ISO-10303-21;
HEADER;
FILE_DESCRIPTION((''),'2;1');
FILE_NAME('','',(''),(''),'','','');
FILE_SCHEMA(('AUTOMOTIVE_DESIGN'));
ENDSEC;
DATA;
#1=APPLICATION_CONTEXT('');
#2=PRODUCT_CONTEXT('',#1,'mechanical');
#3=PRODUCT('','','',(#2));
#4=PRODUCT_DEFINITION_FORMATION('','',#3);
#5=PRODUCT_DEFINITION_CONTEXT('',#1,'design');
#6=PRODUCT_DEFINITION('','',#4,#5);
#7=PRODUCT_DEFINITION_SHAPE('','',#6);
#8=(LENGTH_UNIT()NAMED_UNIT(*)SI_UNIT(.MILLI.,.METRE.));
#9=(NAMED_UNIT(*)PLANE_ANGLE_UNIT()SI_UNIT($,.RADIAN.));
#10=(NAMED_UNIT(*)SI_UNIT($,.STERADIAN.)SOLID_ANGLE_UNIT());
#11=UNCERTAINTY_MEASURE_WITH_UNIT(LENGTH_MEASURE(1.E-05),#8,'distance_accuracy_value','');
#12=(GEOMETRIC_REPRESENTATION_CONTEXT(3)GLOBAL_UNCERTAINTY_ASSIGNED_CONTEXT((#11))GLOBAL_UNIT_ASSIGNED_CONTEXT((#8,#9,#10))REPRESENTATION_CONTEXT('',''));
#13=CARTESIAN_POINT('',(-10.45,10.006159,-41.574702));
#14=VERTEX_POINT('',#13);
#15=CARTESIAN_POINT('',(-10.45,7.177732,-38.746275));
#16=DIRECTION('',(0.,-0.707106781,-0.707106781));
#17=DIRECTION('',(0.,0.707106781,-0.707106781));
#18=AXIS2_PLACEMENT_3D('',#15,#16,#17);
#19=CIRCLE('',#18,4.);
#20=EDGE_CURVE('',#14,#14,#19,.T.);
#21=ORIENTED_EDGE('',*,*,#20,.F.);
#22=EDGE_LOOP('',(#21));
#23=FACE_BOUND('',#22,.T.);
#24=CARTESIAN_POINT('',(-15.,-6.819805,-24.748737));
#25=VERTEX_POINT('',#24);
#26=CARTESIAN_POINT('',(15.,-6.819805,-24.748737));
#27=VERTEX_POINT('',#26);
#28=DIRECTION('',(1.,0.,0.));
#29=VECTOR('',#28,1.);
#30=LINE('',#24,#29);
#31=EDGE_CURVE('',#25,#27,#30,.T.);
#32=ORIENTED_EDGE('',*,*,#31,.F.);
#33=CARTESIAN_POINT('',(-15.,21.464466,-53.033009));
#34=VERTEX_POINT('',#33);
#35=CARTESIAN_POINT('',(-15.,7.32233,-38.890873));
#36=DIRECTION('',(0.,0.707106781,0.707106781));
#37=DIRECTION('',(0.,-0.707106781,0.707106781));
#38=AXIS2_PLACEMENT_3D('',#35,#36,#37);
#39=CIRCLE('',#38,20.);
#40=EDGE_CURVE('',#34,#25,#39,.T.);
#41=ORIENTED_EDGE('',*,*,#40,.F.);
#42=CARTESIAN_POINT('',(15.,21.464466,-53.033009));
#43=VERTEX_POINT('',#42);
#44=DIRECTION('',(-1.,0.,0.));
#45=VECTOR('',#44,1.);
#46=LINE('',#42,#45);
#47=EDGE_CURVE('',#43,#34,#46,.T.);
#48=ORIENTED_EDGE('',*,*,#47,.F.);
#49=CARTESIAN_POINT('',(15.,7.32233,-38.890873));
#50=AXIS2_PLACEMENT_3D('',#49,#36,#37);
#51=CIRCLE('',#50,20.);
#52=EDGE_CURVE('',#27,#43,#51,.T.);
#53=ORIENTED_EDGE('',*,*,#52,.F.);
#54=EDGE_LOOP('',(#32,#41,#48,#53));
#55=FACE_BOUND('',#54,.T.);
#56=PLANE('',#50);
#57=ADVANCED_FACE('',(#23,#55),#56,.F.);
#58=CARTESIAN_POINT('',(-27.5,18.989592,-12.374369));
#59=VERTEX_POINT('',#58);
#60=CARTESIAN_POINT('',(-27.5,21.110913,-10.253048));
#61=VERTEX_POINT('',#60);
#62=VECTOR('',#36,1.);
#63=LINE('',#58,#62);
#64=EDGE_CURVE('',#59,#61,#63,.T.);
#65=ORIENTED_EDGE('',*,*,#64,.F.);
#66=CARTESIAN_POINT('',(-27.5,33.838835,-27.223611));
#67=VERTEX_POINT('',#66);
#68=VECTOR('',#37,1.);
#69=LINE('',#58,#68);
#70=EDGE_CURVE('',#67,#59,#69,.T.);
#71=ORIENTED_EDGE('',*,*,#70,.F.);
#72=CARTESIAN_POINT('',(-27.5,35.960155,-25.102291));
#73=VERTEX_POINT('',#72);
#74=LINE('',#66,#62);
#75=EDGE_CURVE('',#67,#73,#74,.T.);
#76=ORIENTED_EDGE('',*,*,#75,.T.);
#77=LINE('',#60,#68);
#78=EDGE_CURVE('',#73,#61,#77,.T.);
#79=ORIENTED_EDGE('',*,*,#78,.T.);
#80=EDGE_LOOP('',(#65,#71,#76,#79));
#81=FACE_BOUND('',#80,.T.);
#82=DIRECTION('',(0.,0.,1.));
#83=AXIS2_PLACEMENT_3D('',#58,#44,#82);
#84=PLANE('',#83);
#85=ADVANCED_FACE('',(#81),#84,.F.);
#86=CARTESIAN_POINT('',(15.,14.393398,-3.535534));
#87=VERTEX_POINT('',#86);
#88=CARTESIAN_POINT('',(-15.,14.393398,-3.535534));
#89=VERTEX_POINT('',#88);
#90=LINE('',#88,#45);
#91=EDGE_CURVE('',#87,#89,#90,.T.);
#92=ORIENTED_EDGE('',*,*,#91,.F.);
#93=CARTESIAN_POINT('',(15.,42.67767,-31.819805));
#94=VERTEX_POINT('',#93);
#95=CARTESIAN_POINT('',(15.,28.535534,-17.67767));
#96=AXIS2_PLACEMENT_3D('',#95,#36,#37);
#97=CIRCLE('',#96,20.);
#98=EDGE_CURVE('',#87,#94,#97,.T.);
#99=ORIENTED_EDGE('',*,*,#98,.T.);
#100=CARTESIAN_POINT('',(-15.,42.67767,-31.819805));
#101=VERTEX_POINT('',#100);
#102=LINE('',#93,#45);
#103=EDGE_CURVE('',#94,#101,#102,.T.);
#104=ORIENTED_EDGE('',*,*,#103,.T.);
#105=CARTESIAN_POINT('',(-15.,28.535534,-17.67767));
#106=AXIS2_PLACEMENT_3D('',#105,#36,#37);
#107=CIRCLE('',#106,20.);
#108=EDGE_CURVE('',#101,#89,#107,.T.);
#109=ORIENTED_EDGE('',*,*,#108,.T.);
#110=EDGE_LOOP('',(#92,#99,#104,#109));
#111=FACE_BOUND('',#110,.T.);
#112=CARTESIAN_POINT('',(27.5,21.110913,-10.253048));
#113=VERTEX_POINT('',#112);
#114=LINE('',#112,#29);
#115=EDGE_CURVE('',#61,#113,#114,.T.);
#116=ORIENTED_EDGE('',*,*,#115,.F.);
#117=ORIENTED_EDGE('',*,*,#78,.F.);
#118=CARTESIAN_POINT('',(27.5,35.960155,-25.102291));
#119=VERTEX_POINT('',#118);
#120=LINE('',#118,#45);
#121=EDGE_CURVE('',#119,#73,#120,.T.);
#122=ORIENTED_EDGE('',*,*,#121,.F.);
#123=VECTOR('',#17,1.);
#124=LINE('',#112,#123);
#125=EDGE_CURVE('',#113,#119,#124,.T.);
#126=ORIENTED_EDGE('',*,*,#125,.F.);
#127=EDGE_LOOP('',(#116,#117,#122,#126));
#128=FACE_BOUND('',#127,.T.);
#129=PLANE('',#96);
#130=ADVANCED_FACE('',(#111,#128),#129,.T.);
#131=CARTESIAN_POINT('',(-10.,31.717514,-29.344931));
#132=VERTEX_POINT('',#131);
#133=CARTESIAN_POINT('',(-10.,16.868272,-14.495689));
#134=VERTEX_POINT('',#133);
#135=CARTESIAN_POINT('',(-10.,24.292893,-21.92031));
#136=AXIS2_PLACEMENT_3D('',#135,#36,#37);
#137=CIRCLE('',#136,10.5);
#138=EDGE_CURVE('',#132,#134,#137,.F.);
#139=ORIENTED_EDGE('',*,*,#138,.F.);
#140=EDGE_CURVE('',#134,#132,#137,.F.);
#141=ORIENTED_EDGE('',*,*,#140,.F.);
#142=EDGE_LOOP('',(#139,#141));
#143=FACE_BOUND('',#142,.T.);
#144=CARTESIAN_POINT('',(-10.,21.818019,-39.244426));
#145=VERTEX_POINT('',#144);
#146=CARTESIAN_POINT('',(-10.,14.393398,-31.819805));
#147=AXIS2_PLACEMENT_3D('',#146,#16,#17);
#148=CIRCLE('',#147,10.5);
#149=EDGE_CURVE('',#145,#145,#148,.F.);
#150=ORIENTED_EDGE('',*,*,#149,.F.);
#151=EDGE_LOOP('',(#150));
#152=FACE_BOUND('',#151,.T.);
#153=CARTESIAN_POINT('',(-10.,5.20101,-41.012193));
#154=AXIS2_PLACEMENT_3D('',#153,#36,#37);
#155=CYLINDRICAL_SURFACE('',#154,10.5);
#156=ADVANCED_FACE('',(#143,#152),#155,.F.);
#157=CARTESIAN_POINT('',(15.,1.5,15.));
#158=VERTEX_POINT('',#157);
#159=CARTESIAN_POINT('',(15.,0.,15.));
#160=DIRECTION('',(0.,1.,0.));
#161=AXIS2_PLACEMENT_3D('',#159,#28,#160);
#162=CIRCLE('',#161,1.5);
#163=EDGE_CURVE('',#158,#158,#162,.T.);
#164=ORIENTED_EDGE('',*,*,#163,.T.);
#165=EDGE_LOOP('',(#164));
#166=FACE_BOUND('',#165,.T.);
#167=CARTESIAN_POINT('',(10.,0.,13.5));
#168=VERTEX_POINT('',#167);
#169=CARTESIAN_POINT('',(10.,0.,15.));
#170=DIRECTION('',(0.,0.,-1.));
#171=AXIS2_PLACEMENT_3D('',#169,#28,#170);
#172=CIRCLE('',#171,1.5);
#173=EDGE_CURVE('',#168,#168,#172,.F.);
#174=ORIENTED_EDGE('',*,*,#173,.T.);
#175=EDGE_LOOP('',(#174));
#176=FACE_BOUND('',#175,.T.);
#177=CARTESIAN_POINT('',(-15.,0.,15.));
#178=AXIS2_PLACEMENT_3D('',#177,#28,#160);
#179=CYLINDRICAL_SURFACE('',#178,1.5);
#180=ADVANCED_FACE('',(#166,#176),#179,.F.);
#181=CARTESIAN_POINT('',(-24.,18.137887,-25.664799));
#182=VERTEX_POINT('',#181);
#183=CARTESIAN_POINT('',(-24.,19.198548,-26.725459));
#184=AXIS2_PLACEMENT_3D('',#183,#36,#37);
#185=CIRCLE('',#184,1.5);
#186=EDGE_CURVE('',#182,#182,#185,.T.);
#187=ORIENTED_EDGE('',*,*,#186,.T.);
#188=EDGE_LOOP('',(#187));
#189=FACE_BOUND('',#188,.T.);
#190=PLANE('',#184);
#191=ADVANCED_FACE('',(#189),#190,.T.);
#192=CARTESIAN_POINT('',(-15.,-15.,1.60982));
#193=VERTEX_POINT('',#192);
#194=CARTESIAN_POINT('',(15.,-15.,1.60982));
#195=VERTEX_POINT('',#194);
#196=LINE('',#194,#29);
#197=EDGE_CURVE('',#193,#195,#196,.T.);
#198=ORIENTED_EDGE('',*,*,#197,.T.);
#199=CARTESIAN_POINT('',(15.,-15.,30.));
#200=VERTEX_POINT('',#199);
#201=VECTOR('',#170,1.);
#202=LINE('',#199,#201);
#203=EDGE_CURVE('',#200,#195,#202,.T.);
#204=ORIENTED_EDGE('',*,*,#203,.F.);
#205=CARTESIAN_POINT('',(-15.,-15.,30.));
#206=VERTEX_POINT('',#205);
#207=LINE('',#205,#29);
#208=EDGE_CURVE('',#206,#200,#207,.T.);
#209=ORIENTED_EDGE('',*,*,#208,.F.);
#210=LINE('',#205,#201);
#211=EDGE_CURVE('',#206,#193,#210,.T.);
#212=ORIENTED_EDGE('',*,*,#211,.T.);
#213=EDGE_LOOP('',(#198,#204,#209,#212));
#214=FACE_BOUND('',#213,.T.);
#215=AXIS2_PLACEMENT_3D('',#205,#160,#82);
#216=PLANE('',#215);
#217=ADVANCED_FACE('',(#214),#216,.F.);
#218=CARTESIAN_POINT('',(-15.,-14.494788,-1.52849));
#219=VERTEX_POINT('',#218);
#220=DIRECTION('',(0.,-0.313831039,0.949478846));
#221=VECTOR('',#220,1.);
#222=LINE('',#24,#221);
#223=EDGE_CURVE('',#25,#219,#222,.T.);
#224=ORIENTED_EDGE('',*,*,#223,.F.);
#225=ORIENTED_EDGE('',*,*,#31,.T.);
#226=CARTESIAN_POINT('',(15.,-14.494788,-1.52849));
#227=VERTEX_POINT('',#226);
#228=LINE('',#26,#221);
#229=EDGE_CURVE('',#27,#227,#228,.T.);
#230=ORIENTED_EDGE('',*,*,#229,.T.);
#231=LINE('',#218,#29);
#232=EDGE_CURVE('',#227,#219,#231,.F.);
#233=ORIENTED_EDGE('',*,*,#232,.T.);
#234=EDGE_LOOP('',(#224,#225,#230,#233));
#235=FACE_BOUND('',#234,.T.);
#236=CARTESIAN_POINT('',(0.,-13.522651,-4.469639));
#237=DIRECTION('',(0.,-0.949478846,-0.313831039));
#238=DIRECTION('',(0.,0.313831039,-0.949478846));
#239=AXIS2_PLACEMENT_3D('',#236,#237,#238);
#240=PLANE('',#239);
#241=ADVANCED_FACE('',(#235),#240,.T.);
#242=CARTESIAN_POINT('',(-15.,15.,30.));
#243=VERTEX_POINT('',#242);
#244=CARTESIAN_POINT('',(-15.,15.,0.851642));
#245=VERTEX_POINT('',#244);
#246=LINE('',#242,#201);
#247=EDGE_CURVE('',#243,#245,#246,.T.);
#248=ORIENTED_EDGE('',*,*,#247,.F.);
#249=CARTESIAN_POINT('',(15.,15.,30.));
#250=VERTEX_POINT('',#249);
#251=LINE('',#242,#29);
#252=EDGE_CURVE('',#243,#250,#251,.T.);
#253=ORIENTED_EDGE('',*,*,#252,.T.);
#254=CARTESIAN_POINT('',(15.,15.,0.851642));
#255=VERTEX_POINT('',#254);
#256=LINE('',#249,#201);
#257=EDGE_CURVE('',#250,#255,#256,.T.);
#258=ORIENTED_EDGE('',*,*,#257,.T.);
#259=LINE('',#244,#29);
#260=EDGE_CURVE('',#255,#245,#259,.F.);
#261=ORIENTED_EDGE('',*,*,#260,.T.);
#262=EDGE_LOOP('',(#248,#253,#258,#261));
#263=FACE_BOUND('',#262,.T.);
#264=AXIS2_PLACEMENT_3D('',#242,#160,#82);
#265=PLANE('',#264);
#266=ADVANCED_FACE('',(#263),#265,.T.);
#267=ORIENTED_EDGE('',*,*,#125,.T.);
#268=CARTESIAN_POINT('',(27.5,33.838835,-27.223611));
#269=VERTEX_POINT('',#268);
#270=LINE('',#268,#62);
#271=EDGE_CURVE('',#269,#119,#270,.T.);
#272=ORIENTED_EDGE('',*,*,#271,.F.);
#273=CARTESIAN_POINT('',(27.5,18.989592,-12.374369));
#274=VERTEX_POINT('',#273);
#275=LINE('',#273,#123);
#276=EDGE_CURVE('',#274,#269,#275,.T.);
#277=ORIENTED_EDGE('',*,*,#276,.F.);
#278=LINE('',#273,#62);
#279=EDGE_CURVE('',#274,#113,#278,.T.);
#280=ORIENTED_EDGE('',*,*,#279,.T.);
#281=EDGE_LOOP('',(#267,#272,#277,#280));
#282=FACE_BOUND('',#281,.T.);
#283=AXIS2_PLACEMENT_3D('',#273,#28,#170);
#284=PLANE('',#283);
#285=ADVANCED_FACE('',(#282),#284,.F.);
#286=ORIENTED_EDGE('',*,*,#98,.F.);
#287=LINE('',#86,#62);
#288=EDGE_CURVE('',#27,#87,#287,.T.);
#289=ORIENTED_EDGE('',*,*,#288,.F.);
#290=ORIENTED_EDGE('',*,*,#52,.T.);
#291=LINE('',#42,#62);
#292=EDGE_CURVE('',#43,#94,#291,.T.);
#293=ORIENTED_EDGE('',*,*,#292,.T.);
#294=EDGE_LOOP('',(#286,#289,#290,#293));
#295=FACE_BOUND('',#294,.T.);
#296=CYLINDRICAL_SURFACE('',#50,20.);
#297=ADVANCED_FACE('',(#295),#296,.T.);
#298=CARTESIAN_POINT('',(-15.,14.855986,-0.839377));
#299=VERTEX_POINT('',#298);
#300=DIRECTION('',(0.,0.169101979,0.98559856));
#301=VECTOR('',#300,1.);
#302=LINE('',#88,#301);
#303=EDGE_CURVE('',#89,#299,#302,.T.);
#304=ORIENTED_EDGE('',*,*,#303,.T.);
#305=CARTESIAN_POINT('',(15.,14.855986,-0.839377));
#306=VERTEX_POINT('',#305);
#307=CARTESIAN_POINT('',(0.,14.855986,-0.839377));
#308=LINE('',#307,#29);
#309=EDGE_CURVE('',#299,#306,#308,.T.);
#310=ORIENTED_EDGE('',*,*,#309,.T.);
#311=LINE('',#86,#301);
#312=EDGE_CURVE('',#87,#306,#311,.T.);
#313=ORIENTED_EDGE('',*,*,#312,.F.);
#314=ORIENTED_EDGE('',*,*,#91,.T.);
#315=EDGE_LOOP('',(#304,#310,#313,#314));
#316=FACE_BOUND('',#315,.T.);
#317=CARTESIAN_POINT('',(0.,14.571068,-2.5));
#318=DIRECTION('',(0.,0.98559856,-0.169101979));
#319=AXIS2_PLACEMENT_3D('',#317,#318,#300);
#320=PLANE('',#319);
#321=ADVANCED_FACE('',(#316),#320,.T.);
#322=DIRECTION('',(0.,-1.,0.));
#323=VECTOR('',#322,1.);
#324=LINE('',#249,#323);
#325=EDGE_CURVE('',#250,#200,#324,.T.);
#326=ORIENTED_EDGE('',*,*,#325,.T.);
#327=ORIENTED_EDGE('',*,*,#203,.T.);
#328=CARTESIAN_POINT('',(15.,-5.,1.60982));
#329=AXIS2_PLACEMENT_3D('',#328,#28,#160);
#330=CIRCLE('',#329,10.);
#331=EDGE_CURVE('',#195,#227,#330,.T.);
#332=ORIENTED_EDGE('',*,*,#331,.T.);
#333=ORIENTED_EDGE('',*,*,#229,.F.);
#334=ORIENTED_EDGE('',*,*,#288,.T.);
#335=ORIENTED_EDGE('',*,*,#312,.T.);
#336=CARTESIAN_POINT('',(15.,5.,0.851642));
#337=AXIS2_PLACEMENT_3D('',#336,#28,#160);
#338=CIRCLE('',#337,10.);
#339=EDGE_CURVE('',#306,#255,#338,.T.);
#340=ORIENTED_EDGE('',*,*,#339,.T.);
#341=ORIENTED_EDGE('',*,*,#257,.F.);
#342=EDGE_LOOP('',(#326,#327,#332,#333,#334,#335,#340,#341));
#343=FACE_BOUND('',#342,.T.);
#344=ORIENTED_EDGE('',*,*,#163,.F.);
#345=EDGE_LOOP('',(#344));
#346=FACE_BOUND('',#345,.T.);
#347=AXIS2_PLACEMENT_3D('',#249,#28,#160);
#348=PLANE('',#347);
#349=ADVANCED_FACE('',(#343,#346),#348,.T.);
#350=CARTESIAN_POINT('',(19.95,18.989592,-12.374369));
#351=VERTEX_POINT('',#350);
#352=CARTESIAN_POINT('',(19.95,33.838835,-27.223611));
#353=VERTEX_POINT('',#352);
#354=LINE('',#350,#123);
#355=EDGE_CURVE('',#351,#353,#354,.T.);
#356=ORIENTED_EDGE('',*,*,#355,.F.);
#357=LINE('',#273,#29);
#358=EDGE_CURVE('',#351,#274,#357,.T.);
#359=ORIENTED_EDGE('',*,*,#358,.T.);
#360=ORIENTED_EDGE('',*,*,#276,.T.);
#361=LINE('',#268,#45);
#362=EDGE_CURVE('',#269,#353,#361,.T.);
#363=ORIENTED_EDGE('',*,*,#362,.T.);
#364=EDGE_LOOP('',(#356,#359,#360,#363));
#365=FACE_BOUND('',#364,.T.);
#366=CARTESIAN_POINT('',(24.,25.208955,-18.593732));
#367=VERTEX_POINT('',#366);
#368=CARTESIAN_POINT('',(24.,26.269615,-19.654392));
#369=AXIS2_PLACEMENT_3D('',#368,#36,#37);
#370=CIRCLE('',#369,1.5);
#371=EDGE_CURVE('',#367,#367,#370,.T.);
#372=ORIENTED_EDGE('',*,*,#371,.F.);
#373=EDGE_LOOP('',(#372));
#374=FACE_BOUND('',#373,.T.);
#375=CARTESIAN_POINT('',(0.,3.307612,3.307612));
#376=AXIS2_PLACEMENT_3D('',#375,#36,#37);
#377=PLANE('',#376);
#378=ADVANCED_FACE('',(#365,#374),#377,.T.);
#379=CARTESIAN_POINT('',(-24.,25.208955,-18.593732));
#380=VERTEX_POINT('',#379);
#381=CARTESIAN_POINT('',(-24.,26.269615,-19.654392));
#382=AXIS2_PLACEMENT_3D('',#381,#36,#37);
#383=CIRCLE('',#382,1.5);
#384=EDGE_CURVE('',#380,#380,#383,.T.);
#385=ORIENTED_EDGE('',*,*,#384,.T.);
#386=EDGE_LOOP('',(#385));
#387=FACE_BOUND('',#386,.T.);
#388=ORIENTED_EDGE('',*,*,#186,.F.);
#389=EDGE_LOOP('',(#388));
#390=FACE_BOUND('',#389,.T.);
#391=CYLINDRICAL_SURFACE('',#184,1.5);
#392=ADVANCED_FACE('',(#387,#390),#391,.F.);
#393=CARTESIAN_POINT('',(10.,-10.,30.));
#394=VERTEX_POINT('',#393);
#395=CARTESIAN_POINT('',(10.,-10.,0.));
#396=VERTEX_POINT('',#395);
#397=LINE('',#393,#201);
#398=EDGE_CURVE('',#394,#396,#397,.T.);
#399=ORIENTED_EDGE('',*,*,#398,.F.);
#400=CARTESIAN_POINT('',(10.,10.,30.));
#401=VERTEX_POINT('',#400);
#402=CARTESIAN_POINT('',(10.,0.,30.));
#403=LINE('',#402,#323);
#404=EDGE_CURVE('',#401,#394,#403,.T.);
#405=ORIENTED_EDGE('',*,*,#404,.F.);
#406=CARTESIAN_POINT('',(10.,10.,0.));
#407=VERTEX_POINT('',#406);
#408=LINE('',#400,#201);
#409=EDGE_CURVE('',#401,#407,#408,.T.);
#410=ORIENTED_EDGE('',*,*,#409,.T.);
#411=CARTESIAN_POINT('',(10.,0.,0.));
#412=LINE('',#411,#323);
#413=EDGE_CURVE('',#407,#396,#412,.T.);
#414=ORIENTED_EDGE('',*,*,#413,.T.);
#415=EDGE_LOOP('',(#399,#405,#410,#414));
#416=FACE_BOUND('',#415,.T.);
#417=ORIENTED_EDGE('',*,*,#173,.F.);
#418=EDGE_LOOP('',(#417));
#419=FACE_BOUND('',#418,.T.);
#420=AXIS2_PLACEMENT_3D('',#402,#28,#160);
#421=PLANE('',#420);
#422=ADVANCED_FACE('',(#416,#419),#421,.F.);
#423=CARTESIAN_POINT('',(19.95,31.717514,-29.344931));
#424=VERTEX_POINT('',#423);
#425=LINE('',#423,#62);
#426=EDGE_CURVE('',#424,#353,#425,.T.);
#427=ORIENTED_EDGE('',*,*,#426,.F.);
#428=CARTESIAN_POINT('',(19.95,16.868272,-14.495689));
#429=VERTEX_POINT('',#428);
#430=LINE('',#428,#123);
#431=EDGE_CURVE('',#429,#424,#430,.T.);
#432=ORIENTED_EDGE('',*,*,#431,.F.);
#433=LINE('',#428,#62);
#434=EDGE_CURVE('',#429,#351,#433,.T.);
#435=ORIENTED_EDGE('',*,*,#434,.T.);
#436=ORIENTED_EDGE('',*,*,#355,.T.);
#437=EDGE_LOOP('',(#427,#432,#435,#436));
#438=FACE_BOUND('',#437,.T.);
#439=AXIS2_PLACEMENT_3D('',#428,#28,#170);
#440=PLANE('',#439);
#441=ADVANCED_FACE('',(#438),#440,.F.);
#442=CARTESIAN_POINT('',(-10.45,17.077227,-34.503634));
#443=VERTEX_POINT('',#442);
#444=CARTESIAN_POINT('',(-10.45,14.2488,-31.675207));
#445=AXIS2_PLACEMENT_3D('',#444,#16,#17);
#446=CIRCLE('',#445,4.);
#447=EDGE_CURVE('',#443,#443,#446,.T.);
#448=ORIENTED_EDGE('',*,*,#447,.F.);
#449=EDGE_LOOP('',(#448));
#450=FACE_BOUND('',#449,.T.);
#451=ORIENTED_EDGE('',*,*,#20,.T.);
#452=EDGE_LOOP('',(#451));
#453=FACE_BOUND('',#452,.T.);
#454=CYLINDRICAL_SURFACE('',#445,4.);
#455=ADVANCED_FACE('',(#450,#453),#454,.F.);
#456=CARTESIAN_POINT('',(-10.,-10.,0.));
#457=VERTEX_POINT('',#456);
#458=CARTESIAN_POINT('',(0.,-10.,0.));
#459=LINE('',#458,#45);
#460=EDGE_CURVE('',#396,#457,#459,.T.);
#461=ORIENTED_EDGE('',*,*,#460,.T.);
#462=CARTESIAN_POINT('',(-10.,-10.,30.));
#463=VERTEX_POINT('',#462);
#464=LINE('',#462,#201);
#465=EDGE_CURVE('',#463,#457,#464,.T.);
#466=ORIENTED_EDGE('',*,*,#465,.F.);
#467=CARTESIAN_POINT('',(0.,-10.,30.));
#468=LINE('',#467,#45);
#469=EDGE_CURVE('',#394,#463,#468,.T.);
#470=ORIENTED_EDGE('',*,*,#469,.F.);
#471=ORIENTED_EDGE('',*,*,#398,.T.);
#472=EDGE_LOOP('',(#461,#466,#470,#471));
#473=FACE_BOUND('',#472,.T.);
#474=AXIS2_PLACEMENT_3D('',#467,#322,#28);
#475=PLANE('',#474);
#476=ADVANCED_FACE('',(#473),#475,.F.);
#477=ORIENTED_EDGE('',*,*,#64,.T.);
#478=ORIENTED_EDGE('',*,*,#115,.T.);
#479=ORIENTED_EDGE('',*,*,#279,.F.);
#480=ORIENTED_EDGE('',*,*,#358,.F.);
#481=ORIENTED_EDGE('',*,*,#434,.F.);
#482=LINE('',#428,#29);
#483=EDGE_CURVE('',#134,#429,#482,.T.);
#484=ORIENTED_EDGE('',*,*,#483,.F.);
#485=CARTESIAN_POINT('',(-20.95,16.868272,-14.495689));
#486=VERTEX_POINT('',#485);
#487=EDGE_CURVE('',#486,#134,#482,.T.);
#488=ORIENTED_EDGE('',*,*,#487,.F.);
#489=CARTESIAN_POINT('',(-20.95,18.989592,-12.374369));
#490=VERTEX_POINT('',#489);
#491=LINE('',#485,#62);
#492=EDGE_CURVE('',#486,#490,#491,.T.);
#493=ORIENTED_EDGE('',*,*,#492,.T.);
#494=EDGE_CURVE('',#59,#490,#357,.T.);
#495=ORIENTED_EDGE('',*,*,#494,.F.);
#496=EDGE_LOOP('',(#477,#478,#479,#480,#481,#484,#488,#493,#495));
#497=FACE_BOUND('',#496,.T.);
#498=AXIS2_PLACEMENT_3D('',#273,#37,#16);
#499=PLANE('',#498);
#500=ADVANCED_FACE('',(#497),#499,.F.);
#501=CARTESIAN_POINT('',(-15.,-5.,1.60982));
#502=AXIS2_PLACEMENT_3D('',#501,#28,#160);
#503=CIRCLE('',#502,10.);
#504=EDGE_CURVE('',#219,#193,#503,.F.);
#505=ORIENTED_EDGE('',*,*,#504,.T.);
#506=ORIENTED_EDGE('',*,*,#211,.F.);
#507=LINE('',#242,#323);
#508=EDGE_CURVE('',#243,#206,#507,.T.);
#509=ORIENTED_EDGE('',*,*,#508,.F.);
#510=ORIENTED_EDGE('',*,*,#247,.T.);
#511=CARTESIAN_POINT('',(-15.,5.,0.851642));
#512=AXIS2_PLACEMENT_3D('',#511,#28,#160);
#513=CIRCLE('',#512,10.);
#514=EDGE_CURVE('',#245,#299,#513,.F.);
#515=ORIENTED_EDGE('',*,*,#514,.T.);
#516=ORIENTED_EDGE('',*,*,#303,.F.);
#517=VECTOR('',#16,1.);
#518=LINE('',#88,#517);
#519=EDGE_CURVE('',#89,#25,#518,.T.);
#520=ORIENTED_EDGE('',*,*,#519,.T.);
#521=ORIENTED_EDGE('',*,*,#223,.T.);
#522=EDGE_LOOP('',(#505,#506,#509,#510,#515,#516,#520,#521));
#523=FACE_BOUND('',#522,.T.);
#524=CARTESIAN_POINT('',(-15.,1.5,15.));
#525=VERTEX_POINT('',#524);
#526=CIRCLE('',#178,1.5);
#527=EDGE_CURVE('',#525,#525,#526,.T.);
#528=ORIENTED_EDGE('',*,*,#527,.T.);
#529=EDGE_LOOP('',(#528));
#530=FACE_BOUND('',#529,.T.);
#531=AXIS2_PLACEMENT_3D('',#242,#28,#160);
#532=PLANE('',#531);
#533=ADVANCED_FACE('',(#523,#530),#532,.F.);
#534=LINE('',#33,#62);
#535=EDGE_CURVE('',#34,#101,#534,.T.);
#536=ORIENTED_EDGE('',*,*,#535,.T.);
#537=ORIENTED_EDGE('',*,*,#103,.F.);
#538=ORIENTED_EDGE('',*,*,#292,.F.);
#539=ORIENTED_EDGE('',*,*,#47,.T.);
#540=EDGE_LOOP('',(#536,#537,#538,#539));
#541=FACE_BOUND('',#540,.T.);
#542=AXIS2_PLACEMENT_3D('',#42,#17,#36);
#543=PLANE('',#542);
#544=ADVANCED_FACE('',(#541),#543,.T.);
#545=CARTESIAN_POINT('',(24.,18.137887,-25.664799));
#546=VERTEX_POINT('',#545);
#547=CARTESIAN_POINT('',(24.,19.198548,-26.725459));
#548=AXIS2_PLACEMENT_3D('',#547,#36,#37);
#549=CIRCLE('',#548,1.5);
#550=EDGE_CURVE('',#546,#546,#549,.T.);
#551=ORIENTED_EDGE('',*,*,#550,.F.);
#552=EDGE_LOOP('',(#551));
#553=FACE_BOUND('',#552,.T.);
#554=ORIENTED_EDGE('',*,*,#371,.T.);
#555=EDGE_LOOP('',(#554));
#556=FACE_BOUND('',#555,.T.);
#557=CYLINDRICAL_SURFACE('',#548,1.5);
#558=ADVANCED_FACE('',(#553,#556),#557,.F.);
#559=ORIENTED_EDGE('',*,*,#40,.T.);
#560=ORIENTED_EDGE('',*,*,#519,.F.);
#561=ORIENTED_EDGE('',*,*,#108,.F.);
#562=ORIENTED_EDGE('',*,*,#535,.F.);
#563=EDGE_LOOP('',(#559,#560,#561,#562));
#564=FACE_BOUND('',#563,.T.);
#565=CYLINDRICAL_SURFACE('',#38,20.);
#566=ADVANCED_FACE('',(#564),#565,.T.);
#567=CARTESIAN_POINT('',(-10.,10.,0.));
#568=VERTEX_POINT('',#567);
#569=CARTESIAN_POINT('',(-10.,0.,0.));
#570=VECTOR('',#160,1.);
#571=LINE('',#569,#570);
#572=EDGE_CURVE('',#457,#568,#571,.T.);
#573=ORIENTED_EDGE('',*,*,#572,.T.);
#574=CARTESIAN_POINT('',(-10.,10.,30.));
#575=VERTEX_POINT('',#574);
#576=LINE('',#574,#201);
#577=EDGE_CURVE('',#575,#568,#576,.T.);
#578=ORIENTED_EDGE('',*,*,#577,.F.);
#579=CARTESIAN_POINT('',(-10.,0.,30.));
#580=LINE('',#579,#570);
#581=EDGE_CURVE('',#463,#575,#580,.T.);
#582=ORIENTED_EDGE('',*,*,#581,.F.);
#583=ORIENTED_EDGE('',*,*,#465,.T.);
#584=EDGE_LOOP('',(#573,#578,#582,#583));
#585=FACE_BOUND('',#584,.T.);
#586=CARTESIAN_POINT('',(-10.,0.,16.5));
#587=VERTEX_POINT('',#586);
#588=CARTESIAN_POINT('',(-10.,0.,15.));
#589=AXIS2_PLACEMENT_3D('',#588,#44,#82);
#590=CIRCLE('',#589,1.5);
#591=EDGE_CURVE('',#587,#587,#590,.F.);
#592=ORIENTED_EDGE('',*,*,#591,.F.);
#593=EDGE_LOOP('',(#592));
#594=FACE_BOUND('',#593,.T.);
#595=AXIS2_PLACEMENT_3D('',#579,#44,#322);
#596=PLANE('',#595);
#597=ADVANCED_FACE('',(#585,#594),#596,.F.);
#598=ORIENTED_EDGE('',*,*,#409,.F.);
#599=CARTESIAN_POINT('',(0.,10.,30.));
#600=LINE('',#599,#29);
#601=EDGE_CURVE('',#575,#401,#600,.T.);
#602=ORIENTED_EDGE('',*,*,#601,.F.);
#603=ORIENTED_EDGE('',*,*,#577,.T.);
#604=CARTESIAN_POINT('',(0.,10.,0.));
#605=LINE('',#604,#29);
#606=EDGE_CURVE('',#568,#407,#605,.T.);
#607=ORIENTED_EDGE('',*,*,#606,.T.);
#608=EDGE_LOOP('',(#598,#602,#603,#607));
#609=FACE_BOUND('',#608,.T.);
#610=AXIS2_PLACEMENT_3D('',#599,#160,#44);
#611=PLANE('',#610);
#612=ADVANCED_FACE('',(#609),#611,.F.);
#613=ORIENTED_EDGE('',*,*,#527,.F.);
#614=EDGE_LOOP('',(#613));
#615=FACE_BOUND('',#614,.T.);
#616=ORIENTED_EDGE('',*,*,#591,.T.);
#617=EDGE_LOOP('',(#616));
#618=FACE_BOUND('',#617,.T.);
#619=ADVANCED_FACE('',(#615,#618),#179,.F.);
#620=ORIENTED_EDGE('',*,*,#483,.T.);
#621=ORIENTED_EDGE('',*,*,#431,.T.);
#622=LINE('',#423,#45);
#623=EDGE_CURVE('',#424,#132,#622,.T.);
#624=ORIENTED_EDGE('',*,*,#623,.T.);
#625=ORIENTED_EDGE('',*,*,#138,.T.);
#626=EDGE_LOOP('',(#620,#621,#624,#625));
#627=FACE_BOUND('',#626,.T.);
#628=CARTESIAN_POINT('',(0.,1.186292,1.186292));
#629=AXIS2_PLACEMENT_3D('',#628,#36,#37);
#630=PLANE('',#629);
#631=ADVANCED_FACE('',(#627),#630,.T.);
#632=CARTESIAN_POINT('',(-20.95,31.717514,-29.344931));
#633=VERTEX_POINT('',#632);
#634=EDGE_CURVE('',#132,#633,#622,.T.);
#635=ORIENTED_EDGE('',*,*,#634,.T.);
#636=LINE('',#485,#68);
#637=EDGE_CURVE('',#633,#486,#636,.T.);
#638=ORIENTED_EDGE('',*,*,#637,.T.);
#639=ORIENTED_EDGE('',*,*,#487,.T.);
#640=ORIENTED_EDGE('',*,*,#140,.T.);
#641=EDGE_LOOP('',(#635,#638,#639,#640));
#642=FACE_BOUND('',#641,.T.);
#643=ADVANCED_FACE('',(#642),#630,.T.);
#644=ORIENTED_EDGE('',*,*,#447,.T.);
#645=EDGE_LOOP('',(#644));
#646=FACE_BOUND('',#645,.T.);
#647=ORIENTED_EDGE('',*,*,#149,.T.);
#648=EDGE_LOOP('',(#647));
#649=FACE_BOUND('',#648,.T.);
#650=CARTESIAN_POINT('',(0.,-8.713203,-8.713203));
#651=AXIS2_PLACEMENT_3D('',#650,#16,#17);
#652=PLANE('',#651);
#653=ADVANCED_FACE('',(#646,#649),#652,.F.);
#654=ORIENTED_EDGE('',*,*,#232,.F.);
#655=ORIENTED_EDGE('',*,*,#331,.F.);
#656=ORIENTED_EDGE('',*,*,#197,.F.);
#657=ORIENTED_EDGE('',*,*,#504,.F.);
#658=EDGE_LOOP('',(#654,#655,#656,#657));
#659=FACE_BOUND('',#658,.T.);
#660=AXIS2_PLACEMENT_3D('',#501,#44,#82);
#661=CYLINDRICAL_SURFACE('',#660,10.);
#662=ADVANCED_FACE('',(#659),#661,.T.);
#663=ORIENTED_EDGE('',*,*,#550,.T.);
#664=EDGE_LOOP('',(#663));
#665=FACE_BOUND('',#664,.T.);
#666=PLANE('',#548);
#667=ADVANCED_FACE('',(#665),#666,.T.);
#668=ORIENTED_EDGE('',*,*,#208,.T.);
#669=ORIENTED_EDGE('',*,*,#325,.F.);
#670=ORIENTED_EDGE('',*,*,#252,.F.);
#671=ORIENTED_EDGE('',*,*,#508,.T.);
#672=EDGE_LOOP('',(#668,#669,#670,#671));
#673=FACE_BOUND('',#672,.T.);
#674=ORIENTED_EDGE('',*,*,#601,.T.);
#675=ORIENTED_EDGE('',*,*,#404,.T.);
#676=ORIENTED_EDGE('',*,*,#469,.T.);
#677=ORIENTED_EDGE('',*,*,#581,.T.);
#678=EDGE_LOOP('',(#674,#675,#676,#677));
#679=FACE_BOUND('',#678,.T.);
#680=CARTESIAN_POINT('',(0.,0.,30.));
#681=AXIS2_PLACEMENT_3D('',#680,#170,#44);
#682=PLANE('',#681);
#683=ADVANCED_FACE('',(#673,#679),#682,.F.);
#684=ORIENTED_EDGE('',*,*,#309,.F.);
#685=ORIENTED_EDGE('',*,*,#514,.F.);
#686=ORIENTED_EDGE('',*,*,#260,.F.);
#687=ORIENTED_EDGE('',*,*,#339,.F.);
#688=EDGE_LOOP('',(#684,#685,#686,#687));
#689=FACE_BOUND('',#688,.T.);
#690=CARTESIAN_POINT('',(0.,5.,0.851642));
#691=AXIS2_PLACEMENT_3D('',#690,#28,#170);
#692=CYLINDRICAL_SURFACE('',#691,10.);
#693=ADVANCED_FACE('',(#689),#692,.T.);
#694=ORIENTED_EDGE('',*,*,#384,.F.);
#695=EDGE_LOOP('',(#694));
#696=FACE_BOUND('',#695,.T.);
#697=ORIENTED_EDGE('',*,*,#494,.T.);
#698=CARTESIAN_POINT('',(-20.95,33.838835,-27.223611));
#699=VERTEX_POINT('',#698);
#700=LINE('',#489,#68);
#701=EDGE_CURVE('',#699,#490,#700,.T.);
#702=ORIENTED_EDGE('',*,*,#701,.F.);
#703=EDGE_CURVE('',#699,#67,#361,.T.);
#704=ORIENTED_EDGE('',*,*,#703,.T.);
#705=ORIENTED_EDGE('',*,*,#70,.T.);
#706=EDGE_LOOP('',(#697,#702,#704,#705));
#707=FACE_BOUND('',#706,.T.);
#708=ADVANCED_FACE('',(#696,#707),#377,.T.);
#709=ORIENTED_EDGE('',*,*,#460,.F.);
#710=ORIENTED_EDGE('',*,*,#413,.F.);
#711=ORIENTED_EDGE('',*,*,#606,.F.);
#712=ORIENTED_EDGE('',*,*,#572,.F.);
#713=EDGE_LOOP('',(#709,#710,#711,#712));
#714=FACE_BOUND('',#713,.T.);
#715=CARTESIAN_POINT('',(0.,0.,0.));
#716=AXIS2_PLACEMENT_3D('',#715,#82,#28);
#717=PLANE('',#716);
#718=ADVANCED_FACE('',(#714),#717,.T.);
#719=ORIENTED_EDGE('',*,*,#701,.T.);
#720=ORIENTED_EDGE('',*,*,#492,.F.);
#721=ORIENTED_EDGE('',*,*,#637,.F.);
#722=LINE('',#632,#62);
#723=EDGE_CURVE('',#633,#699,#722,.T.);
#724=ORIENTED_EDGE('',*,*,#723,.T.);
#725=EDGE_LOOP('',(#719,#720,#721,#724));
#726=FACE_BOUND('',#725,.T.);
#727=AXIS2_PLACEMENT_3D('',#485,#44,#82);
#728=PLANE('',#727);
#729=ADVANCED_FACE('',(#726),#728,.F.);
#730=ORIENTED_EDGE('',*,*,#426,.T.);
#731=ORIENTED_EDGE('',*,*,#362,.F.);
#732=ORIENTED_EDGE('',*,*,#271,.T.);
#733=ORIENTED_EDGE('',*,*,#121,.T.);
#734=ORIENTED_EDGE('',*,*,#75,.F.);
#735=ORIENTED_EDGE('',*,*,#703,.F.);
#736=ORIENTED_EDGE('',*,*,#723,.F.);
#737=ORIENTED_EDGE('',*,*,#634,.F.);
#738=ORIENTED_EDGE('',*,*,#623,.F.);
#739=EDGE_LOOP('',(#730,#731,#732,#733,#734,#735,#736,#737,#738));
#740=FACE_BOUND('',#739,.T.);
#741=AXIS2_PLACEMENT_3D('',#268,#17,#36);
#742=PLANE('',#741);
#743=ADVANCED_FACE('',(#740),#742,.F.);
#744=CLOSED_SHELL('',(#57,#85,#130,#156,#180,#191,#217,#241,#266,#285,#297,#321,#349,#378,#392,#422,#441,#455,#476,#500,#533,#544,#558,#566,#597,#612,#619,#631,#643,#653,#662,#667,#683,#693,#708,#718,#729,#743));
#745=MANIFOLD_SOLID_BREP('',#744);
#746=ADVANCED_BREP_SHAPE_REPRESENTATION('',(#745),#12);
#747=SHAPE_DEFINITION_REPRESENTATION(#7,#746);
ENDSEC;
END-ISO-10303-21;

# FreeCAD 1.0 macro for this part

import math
import FreeCAD as App
import Part
import Sketcher

V = App.Vector
Q = App.Units.Quantity


def edges_at(feature, points):
    """Names of the edges that pass closest to the given points."""
    edges = feature.Shape.Edges
    near = lambda p: min(range(len(edges)), key=lambda i: edges[i].distToShape(Part.Vertex(*p))[0])
    return sorted({f"Edge{near(p) + 1}" for p in points})

doc = App.newDocument("Part")
body = doc.addObject("PartDesign::Body", "Body")

# Sketch on XY plane
sketch1 = body.newObject("Sketcher::SketchObject", "Sketch")
sketch1.AttachmentSupport = (doc.getObject("XY_Plane"), [""])
sketch1.MapMode = "FlatFace"
sketch1.addGeometry([
    Part.LineSegment(V(-15, 15, 0), V(-15, -15, 0)),  # 0
    Part.LineSegment(V(-15, -15, 0), V(15, -15, 0)),  # 1
    Part.LineSegment(V(15, -15, 0), V(15, 15, 0)),  # 2
    Part.LineSegment(V(15, 15, 0), V(-15, 15, 0)),  # 3
    Part.LineSegment(V(-5.6, 6.7, 0), V(-3.2, 4.2, 0)),  # 4
    Part.LineSegment(V(-3.2, 4.2, 0), V(3.2, 4.2, 0)),  # 5
    Part.LineSegment(V(3.2, 4.2, 0), V(5.6, 6.7, 0)),  # 6
    Part.LineSegment(V(5.6, 6.7, 0), V(5.6, 8.3, 0)),  # 7
    Part.LineSegment(V(5.6, 8.3, 0), V(2.7, 8.3, 0)),  # 8
    Part.LineSegment(V(2.7, 8.3, 0), V(2.7, 10, 0)),  # 9
    Part.LineSegment(V(2.7, 10, 0), V(10, 10, 0)),  # 10
    Part.LineSegment(V(10, 10, 0), V(10, 2.7, 0)),  # 11
    Part.LineSegment(V(10, 2.7, 0), V(8.8, 2.7, 0)),  # 12
    Part.LineSegment(V(8.8, 2.7, 0), V(8.8, 5.6, 0)),  # 13
    Part.LineSegment(V(8.8, 5.6, 0), V(6.7, 5.6, 0)),  # 14
    Part.LineSegment(V(6.7, 5.6, 0), V(4.2, 3.2, 0)),  # 15
    Part.LineSegment(V(4.2, 3.2, 0), V(4.2, -3.2, 0)),  # 16
    Part.LineSegment(V(4.2, -3.2, 0), V(6.7, -5.6, 0)),  # 17
    Part.LineSegment(V(6.7, -5.6, 0), V(8.3, -5.6, 0)),  # 18
    Part.LineSegment(V(8.3, -5.6, 0), V(8.3, -2.7, 0)),  # 19
    Part.LineSegment(V(8.3, -2.7, 0), V(10, -2.7, 0)),  # 20
    Part.LineSegment(V(10, -2.7, 0), V(10, -10, 0)),  # 21
    Part.LineSegment(V(10, -10, 0), V(2.7, -10, 0)),  # 22
    Part.LineSegment(V(2.7, -10, 0), V(2.7, -8.8, 0)),  # 23
    Part.LineSegment(V(2.7, -8.8, 0), V(5.6, -8.8, 0)),  # 24
    Part.LineSegment(V(5.6, -8.8, 0), V(5.6, -6.7, 0)),  # 25
    Part.LineSegment(V(5.6, -6.7, 0), V(3.2, -4.2, 0)),  # 26
    Part.LineSegment(V(3.2, -4.2, 0), V(-3.2, -4.2, 0)),  # 27
    Part.LineSegment(V(-3.2, -4.2, 0), V(-5.6, -6.7, 0)),  # 28
    Part.LineSegment(V(-5.6, -6.7, 0), V(-5.6, -8.3, 0)),  # 29
    Part.LineSegment(V(-5.6, -8.3, 0), V(-2.7, -8.3, 0)),  # 30
    Part.LineSegment(V(-2.7, -8.3, 0), V(-2.7, -10, 0)),  # 31
    Part.LineSegment(V(-2.7, -10, 0), V(-10, -10, 0)),  # 32
    Part.LineSegment(V(-10, -10, 0), V(-10, -2.7, 0)),  # 33
    Part.LineSegment(V(-10, -2.7, 0), V(-8.8, -2.7, 0)),  # 34
    Part.LineSegment(V(-8.8, -2.7, 0), V(-8.8, -5.6, 0)),  # 35
    Part.LineSegment(V(-8.8, -5.6, 0), V(-6.7, -5.6, 0)),  # 36
    Part.LineSegment(V(-6.7, -5.6, 0), V(-4.2, -3.2, 0)),  # 37
    Part.LineSegment(V(-4.2, -3.2, 0), V(-4.2, 3.2, 0)),  # 38
    Part.LineSegment(V(-4.2, 3.2, 0), V(-6.7, 5.6, 0)),  # 39
    Part.LineSegment(V(-6.7, 5.6, 0), V(-8.3, 5.6, 0)),  # 40
    Part.LineSegment(V(-8.3, 5.6, 0), V(-8.3, 2.7, 0)),  # 41
    Part.LineSegment(V(-8.3, 2.7, 0), V(-10, 2.7, 0)),  # 42
    Part.LineSegment(V(-10, 2.7, 0), V(-10, 10, 0)),  # 43
    Part.LineSegment(V(-10, 10, 0), V(-2.7, 10, 0)),  # 44
    Part.LineSegment(V(-2.7, 10, 0), V(-2.7, 8.8, 0)),  # 45
    Part.LineSegment(V(-2.7, 8.8, 0), V(-5.6, 8.8, 0)),  # 46
    Part.LineSegment(V(-5.6, 8.8, 0), V(-5.6, 6.7, 0)),  # 47
], False)
sketch1.addConstraint([
    Sketcher.Constraint("Coincident", 0, 2, 1, 1),
    Sketcher.Constraint("Coincident", 1, 2, 2, 1),
    Sketcher.Constraint("Coincident", 2, 2, 3, 1),
    Sketcher.Constraint("Coincident", 3, 2, 0, 1),
    Sketcher.Constraint("Coincident", 4, 2, 5, 1),
    Sketcher.Constraint("Coincident", 5, 2, 6, 1),
    Sketcher.Constraint("Coincident", 6, 2, 7, 1),
    Sketcher.Constraint("Coincident", 7, 2, 8, 1),
    Sketcher.Constraint("Coincident", 8, 2, 9, 1),
    Sketcher.Constraint("Coincident", 9, 2, 10, 1),
    Sketcher.Constraint("Coincident", 10, 2, 11, 1),
    Sketcher.Constraint("Coincident", 11, 2, 12, 1),
    Sketcher.Constraint("Coincident", 12, 2, 13, 1),
    Sketcher.Constraint("Coincident", 13, 2, 14, 1),
    Sketcher.Constraint("Coincident", 14, 2, 15, 1),
    Sketcher.Constraint("Coincident", 15, 2, 16, 1),
    Sketcher.Constraint("Coincident", 16, 2, 17, 1),
    Sketcher.Constraint("Coincident", 17, 2, 18, 1),
    Sketcher.Constraint("Coincident", 18, 2, 19, 1),
    Sketcher.Constraint("Coincident", 19, 2, 20, 1),
    Sketcher.Constraint("Coincident", 20, 2, 21, 1),
    Sketcher.Constraint("Coincident", 21, 2, 22, 1),
    Sketcher.Constraint("Coincident", 22, 2, 23, 1),
    Sketcher.Constraint("Coincident", 23, 2, 24, 1),
    Sketcher.Constraint("Coincident", 24, 2, 25, 1),
    Sketcher.Constraint("Coincident", 25, 2, 26, 1),
    Sketcher.Constraint("Coincident", 26, 2, 27, 1),
    Sketcher.Constraint("Coincident", 27, 2, 28, 1),
    Sketcher.Constraint("Coincident", 28, 2, 29, 1),
    Sketcher.Constraint("Coincident", 29, 2, 30, 1),
    Sketcher.Constraint("Coincident", 30, 2, 31, 1),
    Sketcher.Constraint("Coincident", 31, 2, 32, 1),
    Sketcher.Constraint("Coincident", 32, 2, 33, 1),
    Sketcher.Constraint("Coincident", 33, 2, 34, 1),
    Sketcher.Constraint("Coincident", 34, 2, 35, 1),
    Sketcher.Constraint("Coincident", 35, 2, 36, 1),
    Sketcher.Constraint("Coincident", 36, 2, 37, 1),
    Sketcher.Constraint("Coincident", 37, 2, 38, 1),
    Sketcher.Constraint("Coincident", 38, 2, 39, 1),
    Sketcher.Constraint("Coincident", 39, 2, 40, 1),
    Sketcher.Constraint("Coincident", 40, 2, 41, 1),
    Sketcher.Constraint("Coincident", 41, 2, 42, 1),
    Sketcher.Constraint("Coincident", 42, 2, 43, 1),
    Sketcher.Constraint("Coincident", 43, 2, 44, 1),
    Sketcher.Constraint("Coincident", 44, 2, 45, 1),
    Sketcher.Constraint("Coincident", 45, 2, 46, 1),
    Sketcher.Constraint("Coincident", 46, 2, 47, 1),
    Sketcher.Constraint("Coincident", 47, 2, 4, 1),
    Sketcher.Constraint("Vertical", 0),
    Sketcher.Constraint("Horizontal", 1),
    Sketcher.Constraint("Vertical", 2),
    Sketcher.Constraint("Horizontal", 3),
    Sketcher.Constraint("Horizontal", 5),
    Sketcher.Constraint("Vertical", 7),
    Sketcher.Constraint("Horizontal", 8),
    Sketcher.Constraint("Vertical", 9),
    Sketcher.Constraint("Horizontal", 10),
    Sketcher.Constraint("Vertical", 11),
    Sketcher.Constraint("Horizontal", 12),
    Sketcher.Constraint("Vertical", 13),
    Sketcher.Constraint("Horizontal", 14),
    Sketcher.Constraint("Vertical", 16),
    Sketcher.Constraint("Horizontal", 18),
    Sketcher.Constraint("Vertical", 19),
    Sketcher.Constraint("Horizontal", 20),
    Sketcher.Constraint("Vertical", 21),
    Sketcher.Constraint("Horizontal", 22),
    Sketcher.Constraint("Vertical", 23),
    Sketcher.Constraint("Horizontal", 24),
    Sketcher.Constraint("Vertical", 25),
    Sketcher.Constraint("Horizontal", 27),
    Sketcher.Constraint("Vertical", 29),
    Sketcher.Constraint("Horizontal", 30),
    Sketcher.Constraint("Vertical", 31),
    Sketcher.Constraint("Horizontal", 32),
    Sketcher.Constraint("Vertical", 33),
    Sketcher.Constraint("Horizontal", 34),
    Sketcher.Constraint("Vertical", 35),
    Sketcher.Constraint("Horizontal", 36),
    Sketcher.Constraint("Vertical", 38),
    Sketcher.Constraint("Horizontal", 40),
    Sketcher.Constraint("Vertical", 41),
    Sketcher.Constraint("Horizontal", 42),
    Sketcher.Constraint("Vertical", 43),
    Sketcher.Constraint("Horizontal", 44),
    Sketcher.Constraint("Vertical", 45),
    Sketcher.Constraint("Horizontal", 46),
    Sketcher.Constraint("Vertical", 47),
    Sketcher.Constraint("Symmetric", 0, 2, 2, 2, -1, 1),
    Sketcher.Constraint("Symmetric", 4, 2, 26, 2, -1, 1),
    Sketcher.Constraint("Symmetric", 6, 2, 28, 2, -1, 1),
    Sketcher.Constraint("Symmetric", 8, 2, 30, 2, -1, 1),
    Sketcher.Constraint("Symmetric", 10, 2, 32, 2, -1, 1),
    Sketcher.Constraint("Symmetric", 12, 2, 34, 2, -1, 1),
    Sketcher.Constraint("Symmetric", 14, 2, 36, 2, -1, 1),
    Sketcher.Constraint("Symmetric", 15, 2, 37, 2, -1, 1),
    Sketcher.Constraint("Symmetric", 17, 2, 39, 2, -1, 1),
    Sketcher.Constraint("Symmetric", 19, 2, 41, 2, -1, 1),
    Sketcher.Constraint("Symmetric", 21, 2, 43, 2, -1, 1),
    Sketcher.Constraint("Symmetric", 23, 2, 45, 2, -1, 1),
    Sketcher.Constraint("Symmetric", 25, 2, 47, 2, -1, 1),
    Sketcher.Constraint("Symmetric", 25, 2, 28, 2, -2),
    Sketcher.Constraint("Symmetric", 22, 2, 31, 2, -2),
    Sketcher.Constraint("Symmetric", 20, 2, 33, 2, -2),
    Sketcher.Constraint("Symmetric", 17, 2, 36, 2, -2),
    Sketcher.Constraint("Perpendicular", 4, 6),
    Sketcher.Constraint("Parallel", 6, 15),
    Sketcher.Constraint("Perpendicular", 15, 17),
    Sketcher.Constraint("Perpendicular", 26, 28),
    Sketcher.Constraint("Perpendicular", 37, 39),
    Sketcher.Constraint("Horizontal", 16, 2, 37, 2),
    Sketcher.Constraint("Equal", 3, 0),
    Sketcher.Constraint("Equal", 40, 7),
    Sketcher.Constraint("Equal", 42, 9),
    Sketcher.Constraint("Equal", 44, 11),
    Sketcher.Constraint("Equal", 46, 13),
    Sketcher.Constraint("Equal", 27, 16),
    Sketcher.Constraint("Equal", 34, 23),
    Sketcher.Constraint("Equal", 6, 15),
    Sketcher.Constraint("DistanceX", 1, 1, 1, 2, Q("30 mm")),
    Sketcher.Constraint("DistanceX", 8, 2, 8, 1, Q("2.9 mm")),
    Sketcher.Constraint("DistanceY", -1, 1, 9, 2, Q("10 mm")),
    Sketcher.Constraint("DistanceX", 12, 2, 12, 1, Q("1.196139 mm")),
    Sketcher.Constraint("DistanceX", 14, 2, 14, 1, Q("2.133438 mm")),
    Sketcher.Constraint("DistanceX", 5, 2, 12, 2, Q("5.6228 mm")),
    Sketcher.Constraint("DistanceX", 10, 1, 10, 2, Q("7.266667 mm")),
    Sketcher.Constraint("DistanceX", 18, 1, 18, 2, Q("1.613974 mm")),
])
pad1 = body.newObject("PartDesign::Pad", "Pad")
pad1.Profile = sketch1
pad1.Length = 30
body2 = doc.addObject("PartDesign::Body", "Body001")

# Sketch on an angled plane
sketch2 = body2.newObject("Sketcher::SketchObject", "Sketch001")
sketch2.Placement = App.Placement(V(15, 17.928932, -7.071068), App.Rotation(V(1, 0, 0), V(0, 0.707106781, -0.707106781), V(0, 0.707106781, 0.707106781), "ZXY"))
sketch2.addGeometry([
    Part.LineSegment(V(-30, -5, 0), V(0, -5, 0)),
    Part.ArcOfCircle(Part.Circle(V(0, 15, 0), V(0, 0, 1), 20), math.radians(-90), math.radians(90)),
    Part.LineSegment(V(0, 35, 0), V(-30, 35, 0)),
    Part.ArcOfCircle(Part.Circle(V(-30, 15, 0), V(0, 0, 1), 20), math.radians(90), math.radians(270)),
], False)
sketch2.addConstraint([
    Sketcher.Constraint("Tangent", 0, 2, 1, 1),
    Sketcher.Constraint("Tangent", 1, 2, 2, 1),
    Sketcher.Constraint("Tangent", 2, 2, 3, 1),
    Sketcher.Constraint("Tangent", 3, 2, 0, 1),
    Sketcher.Constraint("Horizontal", 0),
    Sketcher.Constraint("Horizontal", 2),
    Sketcher.Constraint("PointOnObject", 1, 3, -2),
    Sketcher.Constraint("Radius", 1, Q("20 mm")),
    Sketcher.Constraint("DistanceX", 0, 1, 0, 2, Q("30 mm")),
    Sketcher.Constraint("DistanceY", -1, 1, 1, 3, Q("15 mm")),
])
pad2 = body2.newObject("PartDesign::Pad", "Pad001")
pad2.Profile = sketch2
pad2.Length = 30
pad2.Reversed = True
body.AllowCompound = True
doc.recompute()

boolean = body.newObject("PartDesign::Boolean", "Boolean")
boolean.Type = "Fuse"
boolean.addObjects([body2])

# Sketch on an angled plane
sketch3 = body.newObject("Sketcher::SketchObject", "Sketch002")
sketch3.Placement = App.Placement(V(0, 8.964466, -8.964466), App.Rotation(V(1, 0, 0), V(0, 0.707106781, 0.707106781), V(0, -0.707106781, 0.707106781), "ZXY"))
sketch3.addGeometry([
    Part.LineSegment(V(15, 8, 0), V(-15, 8, 0)),
    Part.LineSegment(V(-15, 8, 0), V(-15, -22, 0)),
    Part.LineSegment(V(-15, -22, 0), V(15, -22, 0)),
    Part.LineSegment(V(15, -22, 0), V(15, 8, 0)),
], False)
sketch3.addConstraint([
    Sketcher.Constraint("Coincident", 0, 2, 1, 1),
    Sketcher.Constraint("Coincident", 1, 2, 2, 1),
    Sketcher.Constraint("Coincident", 2, 2, 3, 1),
    Sketcher.Constraint("Coincident", 3, 2, 0, 1),
    Sketcher.Constraint("Horizontal", 0),
    Sketcher.Constraint("Vertical", 1),
    Sketcher.Constraint("Horizontal", 2),
    Sketcher.Constraint("Vertical", 3),
    Sketcher.Constraint("Equal", 2, 1),
    Sketcher.Constraint("DistanceX", 0, 2, 0, 1, Q("30 mm")),
    Sketcher.Constraint("DistanceX", 0, 2, -1, 1, Q("15 mm")),
    Sketcher.Constraint("DistanceY", -1, 1, 0, 2, Q("7.67767 mm")),
])

# Sketch on XY plane
sketch4 = body.newObject("Sketcher::SketchObject", "Sketch003")
sketch4.AttachmentSupport = (doc.getObject("XY_Plane"), [""])
sketch4.MapMode = "FlatFace"
sketch4.addGeometry([
    Part.LineSegment(V(-15, 15, 0), V(15, 15, 0)),
    Part.LineSegment(V(15, 15, 0), V(15, -15, 0)),
    Part.LineSegment(V(15, -15, 0), V(-15, -15, 0)),
    Part.LineSegment(V(-15, -15, 0), V(-15, 15, 0)),
], False)
sketch4.addConstraint([
    Sketcher.Constraint("Coincident", 0, 2, 1, 1),
    Sketcher.Constraint("Coincident", 1, 2, 2, 1),
    Sketcher.Constraint("Coincident", 2, 2, 3, 1),
    Sketcher.Constraint("Coincident", 3, 2, 0, 1),
    Sketcher.Constraint("Horizontal", 0),
    Sketcher.Constraint("Vertical", 1),
    Sketcher.Constraint("Horizontal", 2),
    Sketcher.Constraint("Vertical", 3),
    Sketcher.Constraint("Symmetric", 0, 2, 2, 2, -1, 1),
    Sketcher.Constraint("Equal", 2, 1),
    Sketcher.Constraint("DistanceX", 0, 1, 0, 2, Q("30 mm")),
])

additiveloft = body.newObject("PartDesign::AdditiveLoft", "AdditiveLoft")
additiveloft.Profile = sketch3
additiveloft.Sections = [sketch4]

# Sketch on an angled plane
sketch5 = body.newObject("Sketcher::SketchObject", "Sketch004")
sketch5.Placement = App.Placement(V(0, 5.428932, 5.428932), App.Rotation(V(1, 0, 0), V(0, 0.707106781, -0.707106781), V(0, 0.707106781, 0.707106781), "ZXY"))
sketch5.addGeometry([
    Part.LineSegment(V(-28, 43, 0), V(-28, 22, 0)),
    Part.LineSegment(V(-28, 22, 0), V(28, 22, 0)),
    Part.LineSegment(V(28, 22, 0), V(28, 43, 0)),
    Part.LineSegment(V(28, 43, 0), V(-28, 43, 0)),
], False)
sketch5.addConstraint([
    Sketcher.Constraint("Coincident", 0, 2, 1, 1),
    Sketcher.Constraint("Coincident", 1, 2, 2, 1),
    Sketcher.Constraint("Coincident", 2, 2, 3, 1),
    Sketcher.Constraint("Coincident", 3, 2, 0, 1),
    Sketcher.Constraint("Vertical", 0),
    Sketcher.Constraint("Horizontal", 1),
    Sketcher.Constraint("Vertical", 2),
    Sketcher.Constraint("Horizontal", 3),
    Sketcher.Constraint("DistanceX", 1, 1, 1, 2, Q("55 mm")),
    Sketcher.Constraint("DistanceY", 0, 2, 0, 1, Q("21 mm")),
    Sketcher.Constraint("DistanceX", 0, 2, -1, 1, Q("27.5 mm")),
    Sketcher.Constraint("DistanceY", -1, 1, 0, 2, Q("22.17767 mm")),
])
pocket1 = body.newObject("PartDesign::Pocket", "Pocket")
pocket1.Profile = sketch5
pocket1.Length = 3

# Sketch on an angled plane
sketch6 = body.newObject("Sketcher::SketchObject", "Sketch005")
sketch6.Placement = App.Placement(V(0, 3.307612, 3.307612), App.Rotation(V(1, 0, 0), V(0, 0.707106781, -0.707106781), V(0, 0.707106781, 0.707106781), "ZXY"))
sketch6.addGeometry([
    Part.Circle(V(24, 32.5, 0), V(0, 0, 1), 1.5),
    Part.Circle(V(-24, 32.5, 0), V(0, 0, 1), 1.5),
], False)
sketch6.addConstraint([
    Sketcher.Constraint("Equal", 0, 1),
    Sketcher.Constraint("Symmetric", 0, 3, 1, 3, -2),
    Sketcher.Constraint("Diameter", 0, Q("3 mm")),
    Sketcher.Constraint("DistanceX", -1, 1, 0, 3, Q("24 mm")),
    Sketcher.Constraint("DistanceY", -1, 1, 0, 3, Q("32.473177 mm")),
])
pocket2 = body.newObject("PartDesign::Pocket", "Pocket001")
pocket2.Profile = sketch6
pocket2.Length = 10

# Sketch on an angled plane
sketch7 = body.newObject("Sketcher::SketchObject", "Sketch006")
sketch7.Placement = App.Placement(V(0, 3.307612, 3.307612), App.Rotation(V(1, 0, 0), V(0, 0.707106781, -0.707106781), V(0, 0.707106781, 0.707106781), "ZXY"))
sketch7.addGeometry(Part.Circle(V(-10, 33, 0), V(0, 0, 1), 10), False)
sketch7.addConstraint([
    Sketcher.Constraint("Diameter", 0, Q("21 mm")),
    Sketcher.Constraint("DistanceX", 0, 3, -1, 1, Q("10 mm")),
    Sketcher.Constraint("DistanceY", -1, 1, 0, 3, Q("32.67767 mm")),
])
pocket3 = body.newObject("PartDesign::Pocket", "Pocket002")
pocket3.Profile = sketch7
pocket3.Length = 30

# Sketch on an angled plane
sketch8 = body.newObject("Sketcher::SketchObject", "Sketch007")
sketch8.Placement = App.Placement(V(0, 3.307612, 3.307612), App.Rotation(V(1, 0, 0), V(0, 0.707106781, -0.707106781), V(0, 0.707106781, 0.707106781), "ZXY"))
sketch8.addGeometry([
    Part.LineSegment(V(-21, 43, 0), V(-21, 22, 0)),
    Part.LineSegment(V(-21, 22, 0), V(20, 22, 0)),
    Part.LineSegment(V(20, 22, 0), V(20, 43, 0)),
    Part.LineSegment(V(20, 43, 0), V(-21, 43, 0)),
], False)
sketch8.addConstraint([
    Sketcher.Constraint("Coincident", 0, 2, 1, 1),
    Sketcher.Constraint("Coincident", 1, 2, 2, 1),
    Sketcher.Constraint("Coincident", 2, 2, 3, 1),
    Sketcher.Constraint("Coincident", 3, 2, 0, 1),
    Sketcher.Constraint("Vertical", 0),
    Sketcher.Constraint("Horizontal", 1),
    Sketcher.Constraint("Vertical", 2),
    Sketcher.Constraint("Horizontal", 3),
    Sketcher.Constraint("DistanceY", 0, 2, 0, 1, Q("21 mm")),
    Sketcher.Constraint("DistanceX", 1, 1, 1, 2, Q("40.9 mm")),
    Sketcher.Constraint("DistanceX", 0, 2, -1, 1, Q("20.95 mm")),
    Sketcher.Constraint("DistanceY", -1, 1, 0, 2, Q("22.17767 mm")),
])
pocket4 = body.newObject("PartDesign::Pocket", "Pocket003")
pocket4.Profile = sketch8
pocket4.Length = 3
doc.recompute()

fillet = body.newObject("PartDesign::Fillet", "Fillet")
fillet.Base = (pocket4, edges_at(pocket4, [(0, 15, 0)]))
fillet.Radius = 10
doc.recompute()

fillet2 = body.newObject("PartDesign::Fillet", "Fillet001")
fillet2.Base = (fillet, edges_at(fillet, [(0, -15, 0)]))
fillet2.Radius = 10

# Sketch on YZ plane
sketch9 = body.newObject("Sketcher::SketchObject", "Sketch008")
sketch9.AttachmentSupport = (doc.getObject("YZ_Plane"), [""])
sketch9.MapMode = "FlatFace"
sketch9.AttachmentOffset = App.Placement(V(0, 0, 15), App.Rotation())
sketch9.addGeometry(Part.Circle(V(0, 15, 0), V(0, 0, 1), 1.5), False)
sketch9.addConstraint([
    Sketcher.Constraint("PointOnObject", 0, 3, -2),
    Sketcher.Constraint("Diameter", 0, Q("3 mm")),
    Sketcher.Constraint("DistanceY", -1, 1, 0, 3, Q("15 mm")),
])
pocket5 = body.newObject("PartDesign::Pocket", "Pocket004")
pocket5.Profile = sketch9
pocket5.Length = 30

# Sketch on an angled plane
sketch10 = body.newObject("Sketcher::SketchObject", "Sketch009")
sketch10.Placement = App.Placement(V(0, -15.784271, -15.784271), App.Rotation(V(1, 0, 0), V(0, -0.707106781, 0.707106781), V(0, -0.707106781, -0.707106781), "ZXY"))
sketch10.addGeometry([
    Part.LineSegment(V(-22.4, -21.8, 0), V(-22.4, -43.2, 0)),  # 0
    Part.LineSegment(V(-22.4, -43.2, 0), V(1.5, -43.2, 0)),  # 1
    Part.LineSegment(V(1.5, -43.2, 0), V(1.5, -21.8, 0)),  # 2
    Part.LineSegment(V(1.5, -21.8, 0), V(-22.4, -21.8, 0)),  # 3
    Part.Circle(V(-10.4, -32.5, 0), V(0, 0, 1), 4),  # 4
], False)
sketch10.addConstraint([
    Sketcher.Constraint("Coincident", 0, 2, 1, 1),
    Sketcher.Constraint("Coincident", 1, 2, 2, 1),
    Sketcher.Constraint("Coincident", 2, 2, 3, 1),
    Sketcher.Constraint("Coincident", 3, 2, 0, 1),
    Sketcher.Constraint("Vertical", 0),
    Sketcher.Constraint("Horizontal", 1),
    Sketcher.Constraint("Vertical", 2),
    Sketcher.Constraint("Horizontal", 3),
    Sketcher.Constraint("Diameter", 4, Q("8 mm")),
    Sketcher.Constraint("DistanceX", 4, 3, -1, 1, Q("10.45 mm")),
    Sketcher.Constraint("DistanceY", 0, 2, 0, 1, Q("21.426789 mm")),
    Sketcher.Constraint("DistanceX", 1, 1, 1, 2, Q("23.993806 mm")),
    Sketcher.Constraint("DistanceY", 0, 2, -1, 1, Q("43.186571 mm")),
    Sketcher.Constraint("DistanceY", 4, 3, -1, 1, Q("32.473177 mm")),
    Sketcher.Constraint("DistanceX", 0, 2, -1, 1, Q("22.446903 mm")),
])
pad3 = body.newObject("PartDesign::Pad", "Pad002")
pad3.Profile = sketch10
pad3.Length = 10
pad3.Reversed = True

# Sketch on XY plane
sketch11 = body.newObject("Sketcher::SketchObject", "Sketch010")
sketch11.AttachmentSupport = (doc.getObject("XY_Plane"), [""])
sketch11.MapMode = "FlatFace"
sketch11.AttachmentOffset = App.Placement(V(0, 0, 30), App.Rotation())
sketch11.addGeometry([
    Part.LineSegment(V(-10, 10, 0), V(-10, -10, 0)),
    Part.LineSegment(V(-10, -10, 0), V(10, -10, 0)),
    Part.LineSegment(V(10, -10, 0), V(10, 10, 0)),
    Part.LineSegment(V(10, 10, 0), V(-10, 10, 0)),
], False)
sketch11.addConstraint([
    Sketcher.Constraint("Coincident", 0, 2, 1, 1),
    Sketcher.Constraint("Coincident", 1, 2, 2, 1),
    Sketcher.Constraint("Coincident", 2, 2, 3, 1),
    Sketcher.Constraint("Coincident", 3, 2, 0, 1),
    Sketcher.Constraint("Vertical", 0),
    Sketcher.Constraint("Horizontal", 1),
    Sketcher.Constraint("Vertical", 2),
    Sketcher.Constraint("Horizontal", 3),
    Sketcher.Constraint("Symmetric", 0, 2, 2, 2, -1, 1),
    Sketcher.Constraint("Equal", 3, 0),
    Sketcher.Constraint("DistanceX", 1, 1, 1, 2, Q("20 mm")),
])
pocket6 = body.newObject("PartDesign::Pocket", "Pocket005")
pocket6.Profile = sketch11
pocket6.Length = 30

doc.recompute()
